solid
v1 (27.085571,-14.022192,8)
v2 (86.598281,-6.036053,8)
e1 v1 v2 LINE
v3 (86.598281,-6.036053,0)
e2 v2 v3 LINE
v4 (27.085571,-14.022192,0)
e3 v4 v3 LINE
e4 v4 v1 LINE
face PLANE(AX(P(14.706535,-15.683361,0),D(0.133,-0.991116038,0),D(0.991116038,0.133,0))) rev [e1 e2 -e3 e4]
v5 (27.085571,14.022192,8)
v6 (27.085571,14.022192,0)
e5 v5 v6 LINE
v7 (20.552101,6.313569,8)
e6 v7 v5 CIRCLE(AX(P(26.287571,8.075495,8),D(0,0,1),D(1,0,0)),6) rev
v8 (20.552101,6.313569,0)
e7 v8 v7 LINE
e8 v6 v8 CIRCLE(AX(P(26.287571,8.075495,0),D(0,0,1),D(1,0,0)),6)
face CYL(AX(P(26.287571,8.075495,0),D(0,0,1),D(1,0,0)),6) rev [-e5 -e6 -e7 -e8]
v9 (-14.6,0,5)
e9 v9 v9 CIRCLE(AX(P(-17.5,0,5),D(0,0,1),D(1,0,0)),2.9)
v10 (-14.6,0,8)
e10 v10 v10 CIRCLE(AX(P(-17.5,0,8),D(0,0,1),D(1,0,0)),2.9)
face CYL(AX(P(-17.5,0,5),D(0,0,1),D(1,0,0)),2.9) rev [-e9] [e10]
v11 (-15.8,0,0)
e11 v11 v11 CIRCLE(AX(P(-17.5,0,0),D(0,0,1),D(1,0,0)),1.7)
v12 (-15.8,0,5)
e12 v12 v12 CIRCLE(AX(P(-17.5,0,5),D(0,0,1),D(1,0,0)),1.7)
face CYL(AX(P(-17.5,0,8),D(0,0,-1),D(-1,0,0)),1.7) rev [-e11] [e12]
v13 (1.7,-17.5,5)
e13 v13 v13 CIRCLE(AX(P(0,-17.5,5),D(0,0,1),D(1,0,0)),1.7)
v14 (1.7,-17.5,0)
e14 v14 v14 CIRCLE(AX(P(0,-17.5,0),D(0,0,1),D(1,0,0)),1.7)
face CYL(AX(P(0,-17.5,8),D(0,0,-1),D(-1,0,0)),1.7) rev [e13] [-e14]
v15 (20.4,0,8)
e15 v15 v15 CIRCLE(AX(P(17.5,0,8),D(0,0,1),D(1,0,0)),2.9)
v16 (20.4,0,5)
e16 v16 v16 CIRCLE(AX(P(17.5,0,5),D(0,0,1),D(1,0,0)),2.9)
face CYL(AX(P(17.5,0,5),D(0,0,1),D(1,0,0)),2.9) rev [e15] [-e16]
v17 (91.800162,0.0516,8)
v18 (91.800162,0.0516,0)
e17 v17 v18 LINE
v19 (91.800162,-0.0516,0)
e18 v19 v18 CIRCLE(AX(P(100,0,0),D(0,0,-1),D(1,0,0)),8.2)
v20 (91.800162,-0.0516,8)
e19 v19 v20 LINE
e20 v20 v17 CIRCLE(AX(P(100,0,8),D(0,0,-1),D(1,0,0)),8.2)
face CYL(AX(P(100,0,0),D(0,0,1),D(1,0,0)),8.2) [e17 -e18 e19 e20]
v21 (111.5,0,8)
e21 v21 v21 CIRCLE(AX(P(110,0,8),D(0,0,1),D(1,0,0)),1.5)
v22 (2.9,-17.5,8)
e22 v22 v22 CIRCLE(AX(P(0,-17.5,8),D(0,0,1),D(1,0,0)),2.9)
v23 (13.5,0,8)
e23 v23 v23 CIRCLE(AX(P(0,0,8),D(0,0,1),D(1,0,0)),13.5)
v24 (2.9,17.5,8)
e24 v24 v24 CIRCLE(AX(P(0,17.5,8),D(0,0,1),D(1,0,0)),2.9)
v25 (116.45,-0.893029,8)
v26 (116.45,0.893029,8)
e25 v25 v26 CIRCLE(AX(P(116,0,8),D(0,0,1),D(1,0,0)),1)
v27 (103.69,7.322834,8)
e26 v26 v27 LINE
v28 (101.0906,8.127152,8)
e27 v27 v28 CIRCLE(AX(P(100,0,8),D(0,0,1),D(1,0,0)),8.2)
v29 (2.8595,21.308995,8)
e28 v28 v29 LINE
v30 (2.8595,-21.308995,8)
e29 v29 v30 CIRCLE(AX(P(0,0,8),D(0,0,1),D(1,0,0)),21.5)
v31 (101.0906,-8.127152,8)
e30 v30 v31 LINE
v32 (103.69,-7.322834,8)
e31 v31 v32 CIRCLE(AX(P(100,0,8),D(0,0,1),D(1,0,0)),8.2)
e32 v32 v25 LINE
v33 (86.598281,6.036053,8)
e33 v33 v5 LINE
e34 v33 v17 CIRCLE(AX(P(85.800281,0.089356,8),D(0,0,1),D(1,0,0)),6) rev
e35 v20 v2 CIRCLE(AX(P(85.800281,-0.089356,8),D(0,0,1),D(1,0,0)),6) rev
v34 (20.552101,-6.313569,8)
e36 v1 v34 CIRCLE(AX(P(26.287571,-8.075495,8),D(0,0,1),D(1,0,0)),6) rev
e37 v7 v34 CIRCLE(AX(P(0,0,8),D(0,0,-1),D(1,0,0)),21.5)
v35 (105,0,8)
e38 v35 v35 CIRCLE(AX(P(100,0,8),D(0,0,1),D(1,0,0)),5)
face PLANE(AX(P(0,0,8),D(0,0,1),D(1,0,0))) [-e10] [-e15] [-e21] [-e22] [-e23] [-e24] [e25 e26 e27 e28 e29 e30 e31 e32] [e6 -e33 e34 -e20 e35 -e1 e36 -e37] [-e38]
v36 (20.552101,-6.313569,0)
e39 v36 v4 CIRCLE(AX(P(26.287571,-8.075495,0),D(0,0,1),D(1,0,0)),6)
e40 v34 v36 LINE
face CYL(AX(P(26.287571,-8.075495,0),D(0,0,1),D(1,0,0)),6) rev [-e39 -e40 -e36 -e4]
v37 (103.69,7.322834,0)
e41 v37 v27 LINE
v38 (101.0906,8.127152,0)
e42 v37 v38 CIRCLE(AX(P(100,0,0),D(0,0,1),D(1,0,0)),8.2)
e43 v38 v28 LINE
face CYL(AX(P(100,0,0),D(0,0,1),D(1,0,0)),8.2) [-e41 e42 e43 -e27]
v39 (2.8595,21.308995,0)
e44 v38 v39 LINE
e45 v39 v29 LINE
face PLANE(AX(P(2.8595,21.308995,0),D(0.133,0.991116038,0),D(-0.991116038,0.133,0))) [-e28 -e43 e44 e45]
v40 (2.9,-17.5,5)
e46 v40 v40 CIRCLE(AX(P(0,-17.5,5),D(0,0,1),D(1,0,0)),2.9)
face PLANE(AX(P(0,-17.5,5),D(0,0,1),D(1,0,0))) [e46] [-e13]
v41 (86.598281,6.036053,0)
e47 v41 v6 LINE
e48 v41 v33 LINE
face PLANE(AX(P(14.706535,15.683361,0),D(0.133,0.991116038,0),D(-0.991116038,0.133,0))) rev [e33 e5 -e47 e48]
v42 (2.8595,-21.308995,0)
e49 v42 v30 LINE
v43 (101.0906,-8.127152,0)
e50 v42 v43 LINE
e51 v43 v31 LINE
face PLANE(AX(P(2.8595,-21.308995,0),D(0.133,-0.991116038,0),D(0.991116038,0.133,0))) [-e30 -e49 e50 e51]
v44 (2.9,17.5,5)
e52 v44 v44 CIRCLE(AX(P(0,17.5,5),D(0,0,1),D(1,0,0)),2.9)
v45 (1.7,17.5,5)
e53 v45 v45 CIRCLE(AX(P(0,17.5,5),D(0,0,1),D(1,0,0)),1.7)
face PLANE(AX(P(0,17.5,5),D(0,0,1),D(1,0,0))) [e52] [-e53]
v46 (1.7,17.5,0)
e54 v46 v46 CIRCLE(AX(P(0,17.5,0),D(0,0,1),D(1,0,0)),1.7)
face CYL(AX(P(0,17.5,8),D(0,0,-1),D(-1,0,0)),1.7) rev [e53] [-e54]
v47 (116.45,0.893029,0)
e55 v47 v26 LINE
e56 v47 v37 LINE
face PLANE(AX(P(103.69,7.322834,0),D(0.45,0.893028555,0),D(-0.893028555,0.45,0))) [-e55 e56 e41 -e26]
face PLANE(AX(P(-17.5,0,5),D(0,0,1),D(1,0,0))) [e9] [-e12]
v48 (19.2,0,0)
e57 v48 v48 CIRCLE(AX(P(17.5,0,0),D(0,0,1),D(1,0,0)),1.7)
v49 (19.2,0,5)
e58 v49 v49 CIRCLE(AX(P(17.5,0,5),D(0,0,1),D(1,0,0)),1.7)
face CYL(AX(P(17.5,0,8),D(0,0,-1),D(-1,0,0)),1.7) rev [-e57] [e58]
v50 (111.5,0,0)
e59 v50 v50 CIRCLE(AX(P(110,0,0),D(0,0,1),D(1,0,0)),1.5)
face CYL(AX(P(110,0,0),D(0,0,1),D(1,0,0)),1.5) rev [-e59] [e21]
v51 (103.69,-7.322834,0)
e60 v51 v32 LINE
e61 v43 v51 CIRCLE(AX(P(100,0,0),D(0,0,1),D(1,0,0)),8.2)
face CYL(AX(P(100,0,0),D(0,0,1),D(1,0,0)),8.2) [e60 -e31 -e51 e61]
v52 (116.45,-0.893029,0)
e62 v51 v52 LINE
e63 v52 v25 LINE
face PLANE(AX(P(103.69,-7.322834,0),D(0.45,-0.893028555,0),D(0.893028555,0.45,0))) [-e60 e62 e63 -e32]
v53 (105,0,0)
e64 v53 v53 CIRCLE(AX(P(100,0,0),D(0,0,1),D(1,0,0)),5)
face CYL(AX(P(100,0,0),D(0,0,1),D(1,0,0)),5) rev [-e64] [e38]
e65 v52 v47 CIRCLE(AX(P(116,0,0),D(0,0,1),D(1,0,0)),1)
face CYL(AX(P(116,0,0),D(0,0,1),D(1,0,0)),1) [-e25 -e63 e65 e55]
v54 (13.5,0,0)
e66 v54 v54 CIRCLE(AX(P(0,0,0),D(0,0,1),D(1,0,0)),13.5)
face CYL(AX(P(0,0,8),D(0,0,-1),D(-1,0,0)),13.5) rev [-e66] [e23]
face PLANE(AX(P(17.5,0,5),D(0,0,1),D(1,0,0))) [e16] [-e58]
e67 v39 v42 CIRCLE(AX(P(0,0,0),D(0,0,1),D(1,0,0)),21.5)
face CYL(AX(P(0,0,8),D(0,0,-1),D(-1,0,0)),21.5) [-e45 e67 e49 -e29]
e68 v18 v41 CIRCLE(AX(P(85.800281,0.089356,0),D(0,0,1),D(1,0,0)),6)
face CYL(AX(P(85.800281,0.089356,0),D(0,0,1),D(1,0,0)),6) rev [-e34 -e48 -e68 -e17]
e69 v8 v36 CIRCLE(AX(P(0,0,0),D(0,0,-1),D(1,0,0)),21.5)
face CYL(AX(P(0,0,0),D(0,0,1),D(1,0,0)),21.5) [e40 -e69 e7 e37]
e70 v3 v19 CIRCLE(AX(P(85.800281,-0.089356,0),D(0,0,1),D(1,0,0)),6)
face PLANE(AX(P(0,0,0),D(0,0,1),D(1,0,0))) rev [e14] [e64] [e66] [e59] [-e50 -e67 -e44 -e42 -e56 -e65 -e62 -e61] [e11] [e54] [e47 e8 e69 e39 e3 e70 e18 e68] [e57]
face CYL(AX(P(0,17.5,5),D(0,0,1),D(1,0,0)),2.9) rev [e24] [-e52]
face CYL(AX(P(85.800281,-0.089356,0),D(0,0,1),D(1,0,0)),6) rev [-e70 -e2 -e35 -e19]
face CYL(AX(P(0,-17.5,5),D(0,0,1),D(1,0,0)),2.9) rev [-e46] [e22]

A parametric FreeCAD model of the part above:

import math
import FreeCAD as App
import Part
import Sketcher
Q = App.Units.Quantity


def edges_at(feature, points):
    """Names of the edges that pass closest to the given points."""
    edges = feature.Shape.Edges
    near = lambda p: min(range(len(edges)), key=lambda i: edges[i].distToShape(Part.Vertex(*p))[0])
    return sorted({f"Edge{near(p) + 1}" for p in points})

doc = App.newDocument("Part")
body = doc.addObject("PartDesign::Body", "Body")

sketch1 = doc.addObject("Sketcher::SketchObject", "Sketch")
body.addObject(sketch1)
sketch1.AttachmentSupport = (doc.XY_Plane, [""])
sketch1.MapMode = "FlatFace"
sketch1.addGeometry(Part.Circle(App.Vector(0, 0, 0), App.Vector(0, 0, 1), 21.5), False)
sketch1.addGeometry(Part.Circle(App.Vector(0, -17.5, 0), App.Vector(0, 0, 1), 1.7), False)
sketch1.addGeometry(Part.Circle(App.Vector(0, 0, 0), App.Vector(0, 0, 1), 13.5), False)
sketch1.addGeometry(Part.Circle(App.Vector(-17.5, 0, 0), App.Vector(0, 0, 1), 1.7), False)
sketch1.addGeometry(Part.Circle(App.Vector(17.5, 0, 0), App.Vector(0, 0, 1), 1.7), False)
sketch1.addGeometry(Part.Circle(App.Vector(0, 17.5, 0), App.Vector(0, 0, 1), 1.7), False)
sketch1.addConstraint(Sketcher.Constraint("Coincident", 0, 3, -1, 1))
sketch1.addConstraint(Sketcher.Constraint("Coincident", 2, 3, -1, 1))
sketch1.addConstraint(Sketcher.Constraint("Equal", 1, 3))
sketch1.addConstraint(Sketcher.Constraint("Equal", 3, 4))
sketch1.addConstraint(Sketcher.Constraint("Equal", 4, 5))
sketch1.addConstraint(Sketcher.Constraint("Symmetric", 3, 3, 4, 3, -1, 1))
sketch1.addConstraint(Sketcher.Constraint("Symmetric", 1, 3, 5, 3, -1, 1))
sketch1.addConstraint(Sketcher.Constraint("PointOnObject", 1, 3, -2))
sketch1.addConstraint(Sketcher.Constraint("PointOnObject", 3, 3, -1))
sketch1.addConstraint(Sketcher.Constraint("Diameter", 0, Q("43 mm")))
sketch1.addConstraint(Sketcher.Constraint("Diameter", 2, Q("27 mm")))
sketch1.addConstraint(Sketcher.Constraint("Diameter", 1, Q("3.4 mm")))
sketch1.addConstraint(Sketcher.Constraint("DistanceX", 3, 3, 4, 3, Q("35 mm")))
sketch1.addConstraint(Sketcher.Constraint("DistanceY", 1, 3, 5, 3, Q("35 mm")))
pad1 = doc.addObject("PartDesign::Pad", "Pad")
body.addObject(pad1)
pad1.Profile = sketch1
pad1.Length = 8

sketch2 = doc.addObject("Sketcher::SketchObject", "Sketch001")
body.addObject(sketch2)
sketch2.AttachmentSupport = (doc.XY_Plane, [""])
sketch2.MapMode = "FlatFace"
sketch2.addGeometry(Part.LineSegment(App.Vector(101, 8, 0), App.Vector(3, 21, 0)), False)
sketch2.addGeometry(Part.ArcOfCircle(Part.Circle(App.Vector(0, 0, 0), App.Vector(0, 0, 1), 22), math.radians(-82), math.radians(82)), False)
sketch2.addGeometry(Part.LineSegment(App.Vector(3, -21, 0), App.Vector(101, -8, 0)), False)
sketch2.addGeometry(Part.ArcOfCircle(Part.Circle(App.Vector(100, 0, 0), App.Vector(0, 0, 1), 8), math.radians(-82), math.radians(82)), False)
sketch2.addGeometry(Part.Circle(App.Vector(100, 0, 0), App.Vector(0, 0, 1), 5), False)
sketch2.addConstraint(Sketcher.Constraint("Tangent", 0, 2, 1, 2))
sketch2.addConstraint(Sketcher.Constraint("Tangent", 1, 1, 2, 1))
sketch2.addConstraint(Sketcher.Constraint("Tangent", 2, 2, 3, 1))
sketch2.addConstraint(Sketcher.Constraint("Tangent", 3, 2, 0, 1))
sketch2.addConstraint(Sketcher.Constraint("Coincident", 1, 3, -1, 1))
sketch2.addConstraint(Sketcher.Constraint("Coincident", 4, 3, 3, 3))
sketch2.addConstraint(Sketcher.Constraint("PointOnObject", 3, 3, -1))
sketch2.addConstraint(Sketcher.Constraint("Diameter", 4, Q("10 mm")))
sketch2.addConstraint(Sketcher.Constraint("Radius", 1, Q("21.5 mm")))
sketch2.addConstraint(Sketcher.Constraint("Radius", 3, Q("8.2 mm")))
sketch2.addConstraint(Sketcher.Constraint("DistanceX", -1, 1, 3, 3, Q("100 mm")))
pad2 = doc.addObject("PartDesign::Pad", "Pad001")
body.addObject(pad2)
pad2.Profile = sketch2
pad2.Length = 8

sketch3 = doc.addObject("Sketcher::SketchObject", "Sketch002")
body.addObject(sketch3)
sketch3.AttachmentSupport = (doc.XY_Plane, [""])
sketch3.MapMode = "FlatFace"
sketch3.AttachmentOffset = App.Placement(App.Vector(0, 0, 8), App.Rotation())
sketch3.addGeometry(Part.LineSegment(App.Vector(94, 5, 0), App.Vector(15, 16, 0)), False)
sketch3.addGeometry(Part.ArcOfCircle(Part.Circle(App.Vector(0, 0, 0), App.Vector(0, 0, 1), 22), math.radians(-47), math.radians(47)), False)
sketch3.addGeometry(Part.LineSegment(App.Vector(15, -16, 0), App.Vector(94, -5, 0)), False)
sketch3.addGeometry(Part.ArcOfCircle(Part.Circle(App.Vector(100, 0, 0), App.Vector(0, 0, 1), 8), math.radians(142), math.radians(218)), False)
sketch3.addConstraint(Sketcher.Constraint("Coincident", 0, 2, 1, 2))
sketch3.addConstraint(Sketcher.Constraint("Coincident", 1, 1, 2, 1))
sketch3.addConstraint(Sketcher.Constraint("Coincident", 2, 2, 3, 2))
sketch3.addConstraint(Sketcher.Constraint("Coincident", 3, 1, 0, 1))
sketch3.addConstraint(Sketcher.Constraint("Coincident", 1, 3, -1, 1))
sketch3.addConstraint(Sketcher.Constraint("Symmetric", 2, 2, 3, 1, -1))
sketch3.addConstraint(Sketcher.Constraint("Vertical", 0, 2, 1, 1))
sketch3.addConstraint(Sketcher.Constraint("Radius", 1, Q("21.5 mm")))
sketch3.addConstraint(Sketcher.Constraint("Radius", 3, Q("8.2 mm")))
sketch3.addConstraint(Sketcher.Constraint("DistanceX", -1, 1, 3, 3, Q("100 mm")))
sketch3.addConstraint(Sketcher.Constraint("Distance", 0, Q("79.578881 mm")))
sketch3.addConstraint(Sketcher.Constraint("DistanceY", -1, 1, 0, 2, Q("15.683361 mm")))
pocket1 = doc.addObject("PartDesign::Pocket", "Pocket")
body.addObject(pocket1)
pocket1.Profile = sketch3
pocket1.Type = "ThroughAll"
doc.recompute()

fillet = doc.addObject("PartDesign::Fillet", "Fillet")
body.addObject(fillet)
fillet.Base = (pocket1, edges_at(pocket1, [
    (14.707, -15.683, 4),
    (14.707, 15.683, 4),
    (93.578, 5.099, 4),
    (93.578, -5.099, 4),
]))
fillet.Radius = 6

sketch4 = doc.addObject("Sketcher::SketchObject", "Sketch003")
body.addObject(sketch4)
sketch4.AttachmentSupport = (doc.XY_Plane, [""])
sketch4.MapMode = "FlatFace"
sketch4.AttachmentOffset = App.Placement(App.Vector(0, 0, 8), App.Rotation())
sketch4.addGeometry(Part.LineSegment(App.Vector(116.5, 0.9, 0), App.Vector(103.7, 7.3, 0)), False)
sketch4.addGeometry(Part.ArcOfCircle(Part.Circle(App.Vector(100, 0, 0), App.Vector(0, 0, 1), 8.2), math.radians(-63), math.radians(63)), False)
sketch4.addGeometry(Part.LineSegment(App.Vector(103.7, -7.3, 0), App.Vector(116.5, -0.9, 0)), False)
sketch4.addGeometry(Part.ArcOfCircle(Part.Circle(App.Vector(116, 0, 0), App.Vector(0, 0, 1), 1), math.radians(-63), math.radians(63)), False)
sketch4.addGeometry(Part.Circle(App.Vector(110, 0, 0), App.Vector(0, 0, 1), 1.5), False)
sketch4.addConstraint(Sketcher.Constraint("Tangent", 0, 2, 1, 2))
sketch4.addConstraint(Sketcher.Constraint("Tangent", 1, 1, 2, 1))
sketch4.addConstraint(Sketcher.Constraint("Tangent", 2, 2, 3, 1))
sketch4.addConstraint(Sketcher.Constraint("Tangent", 3, 2, 0, 1))
sketch4.addConstraint(Sketcher.Constraint("Symmetric", 0, 2, 1, 1, -1))
sketch4.addConstraint(Sketcher.Constraint("PointOnObject", 4, 3, -1))
sketch4.addConstraint(Sketcher.Constraint("Diameter", 4, Q("3 mm")))
sketch4.addConstraint(Sketcher.Constraint("Radius", 3, Q("1 mm")))
sketch4.addConstraint(Sketcher.Constraint("Radius", 1, Q("8.2 mm")))
sketch4.addConstraint(Sketcher.Constraint("DistanceX", -1, 1, 1, 3, Q("100 mm")))
sketch4.addConstraint(Sketcher.Constraint("DistanceX", -1, 1, 3, 3, Q("116 mm")))
sketch4.addConstraint(Sketcher.Constraint("DistanceX", -1, 1, 4, 3, Q("110 mm")))
pad3 = doc.addObject("PartDesign::Pad", "Pad002")
body.addObject(pad3)
pad3.Profile = sketch4
pad3.Length = 8
pad3.Reversed = True

sketch5 = doc.addObject("Sketcher::SketchObject", "Sketch004")
body.addObject(sketch5)
sketch5.AttachmentSupport = (doc.XY_Plane, [""])
sketch5.MapMode = "FlatFace"
sketch5.AttachmentOffset = App.Placement(App.Vector(0, 0, 8), App.Rotation())
sketch5.addGeometry(Part.Circle(App.Vector(0, 17.5, 0), App.Vector(0, 0, 1), 2.9), False)
sketch5.addGeometry(Part.Circle(App.Vector(17.5, 0, 0), App.Vector(0, 0, 1), 2.9), False)
sketch5.addGeometry(Part.Circle(App.Vector(0, -17.5, 0), App.Vector(0, 0, 1), 2.9), False)
sketch5.addGeometry(Part.Circle(App.Vector(-17.5, 0, 0), App.Vector(0, 0, 1), 2.9), False)
sketch5.addConstraint(Sketcher.Constraint("Equal", 0, 1))
sketch5.addConstraint(Sketcher.Constraint("Equal", 1, 2))
sketch5.addConstraint(Sketcher.Constraint("Equal", 2, 3))
sketch5.addConstraint(Sketcher.Constraint("Symmetric", 0, 3, 2, 3, -1, 1))
sketch5.addConstraint(Sketcher.Constraint("Symmetric", 1, 3, 3, 3, -1, 1))
sketch5.addConstraint(Sketcher.Constraint("PointOnObject", 0, 3, -2))
sketch5.addConstraint(Sketcher.Constraint("PointOnObject", 1, 3, -1))
sketch5.addConstraint(Sketcher.Constraint("Diameter", 0, Q("5.8 mm")))
sketch5.addConstraint(Sketcher.Constraint("DistanceY", 2, 3, 0, 3, Q("35 mm")))
sketch5.addConstraint(Sketcher.Constraint("DistanceX", 3, 3, 1, 3, Q("35 mm")))
pocket2 = doc.addObject("PartDesign::Pocket", "Pocket001")
body.addObject(pocket2)
pocket2.Profile = sketch5
pocket2.Length = 3

doc.recompute()
